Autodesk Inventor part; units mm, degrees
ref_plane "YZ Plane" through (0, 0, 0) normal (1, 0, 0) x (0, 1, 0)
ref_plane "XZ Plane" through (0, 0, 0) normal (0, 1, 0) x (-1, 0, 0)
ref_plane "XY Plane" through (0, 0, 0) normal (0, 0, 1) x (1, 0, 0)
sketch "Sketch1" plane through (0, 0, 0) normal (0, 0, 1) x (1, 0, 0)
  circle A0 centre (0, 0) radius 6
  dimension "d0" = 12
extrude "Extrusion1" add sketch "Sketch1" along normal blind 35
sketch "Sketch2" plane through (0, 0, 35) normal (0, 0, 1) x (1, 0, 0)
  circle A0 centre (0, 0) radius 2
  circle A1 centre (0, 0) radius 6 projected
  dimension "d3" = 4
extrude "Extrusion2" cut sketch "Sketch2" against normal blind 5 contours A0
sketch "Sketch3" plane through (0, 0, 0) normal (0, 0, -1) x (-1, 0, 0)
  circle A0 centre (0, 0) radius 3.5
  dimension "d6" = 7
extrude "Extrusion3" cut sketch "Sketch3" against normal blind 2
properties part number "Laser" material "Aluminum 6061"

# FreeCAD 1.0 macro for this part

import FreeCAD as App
import Part
import Sketcher

V = App.Vector
Q = App.Units.Quantity

doc = App.newDocument("Part")
params = doc.addObject("Spreadsheet::Sheet", "Params")
for row, (alias, value) in enumerate([
    ("sketch1_diameter", "12 mm"),
    ("pad1_length", "35 mm"),
    ("sketch2_diameter", "4 mm"),
    ("pocket1_length", "5 mm"),
    ("sketch3_diameter", "7 mm"),
    ("pocket2_length", "2 mm"),
], start=1):
    params.set(f"A{row}", alias)
    params.set(f"B{row}", "=" + value)
    params.setAlias(f"B{row}", alias)

body = doc.addObject("PartDesign::Body", "Body")

sketch1 = body.newObject("Sketcher::SketchObject", "Sketch")
sketch1.AttachmentSupport = (doc.getObject("XY_Plane"), [""])
sketch1.MapMode = "FlatFace"
sketch1.addGeometry(Part.Circle(V(0, 0, 0), V(0, 0, 1), 6), False)
sketch1.addConstraint([
    Sketcher.Constraint("Coincident", 0, 3, -1, 1),
    Sketcher.Constraint("Diameter", 0, Q("12 mm")),
])
sketch1.setExpression("Constraints[1]", "Params.sketch1_diameter")
pad1 = body.newObject("PartDesign::Pad", "Pad")
pad1.Profile = sketch1
pad1.setExpression("Length", "Params.pad1_length")

sketch2 = body.newObject("Sketcher::SketchObject", "Sketch001")
sketch2.AttachmentSupport = (doc.getObject("XY_Plane"), [""])
sketch2.MapMode = "FlatFace"
sketch2.AttachmentOffset = App.Placement(V(0, 0, 35), App.Rotation())
sketch2.addGeometry(Part.Circle(V(0, 0, 0), V(0, 0, 1), 2), False)
sketch2.addConstraint([
    Sketcher.Constraint("Coincident", 0, 3, -1, 1),
    Sketcher.Constraint("Diameter", 0, Q("4 mm")),
])
sketch2.setExpression("Constraints[1]", "Params.sketch2_diameter")
pocket1 = body.newObject("PartDesign::Pocket", "Pocket")
pocket1.Profile = sketch2
pocket1.setExpression("Length", "Params.pocket1_length")

sketch3 = body.newObject("Sketcher::SketchObject", "Sketch002")
sketch3.AttachmentSupport = (doc.getObject("XY_Plane"), [""])
sketch3.MapMode = "FlatFace"
sketch3.addGeometry(Part.Circle(V(0, 0, 0), V(0, 0, 1), 3.5), False)
sketch3.addConstraint([
    Sketcher.Constraint("Coincident", 0, 3, -1, 1),
    Sketcher.Constraint("Diameter", 0, Q("7 mm")),
])
sketch3.setExpression("Constraints[1]", "Params.sketch3_diameter")
pocket2 = body.newObject("PartDesign::Pocket", "Pocket001")
pocket2.Profile = sketch3
pocket2.setExpression("Length", "Params.pocket2_length")
pocket2.Reversed = True

doc.recompute()
